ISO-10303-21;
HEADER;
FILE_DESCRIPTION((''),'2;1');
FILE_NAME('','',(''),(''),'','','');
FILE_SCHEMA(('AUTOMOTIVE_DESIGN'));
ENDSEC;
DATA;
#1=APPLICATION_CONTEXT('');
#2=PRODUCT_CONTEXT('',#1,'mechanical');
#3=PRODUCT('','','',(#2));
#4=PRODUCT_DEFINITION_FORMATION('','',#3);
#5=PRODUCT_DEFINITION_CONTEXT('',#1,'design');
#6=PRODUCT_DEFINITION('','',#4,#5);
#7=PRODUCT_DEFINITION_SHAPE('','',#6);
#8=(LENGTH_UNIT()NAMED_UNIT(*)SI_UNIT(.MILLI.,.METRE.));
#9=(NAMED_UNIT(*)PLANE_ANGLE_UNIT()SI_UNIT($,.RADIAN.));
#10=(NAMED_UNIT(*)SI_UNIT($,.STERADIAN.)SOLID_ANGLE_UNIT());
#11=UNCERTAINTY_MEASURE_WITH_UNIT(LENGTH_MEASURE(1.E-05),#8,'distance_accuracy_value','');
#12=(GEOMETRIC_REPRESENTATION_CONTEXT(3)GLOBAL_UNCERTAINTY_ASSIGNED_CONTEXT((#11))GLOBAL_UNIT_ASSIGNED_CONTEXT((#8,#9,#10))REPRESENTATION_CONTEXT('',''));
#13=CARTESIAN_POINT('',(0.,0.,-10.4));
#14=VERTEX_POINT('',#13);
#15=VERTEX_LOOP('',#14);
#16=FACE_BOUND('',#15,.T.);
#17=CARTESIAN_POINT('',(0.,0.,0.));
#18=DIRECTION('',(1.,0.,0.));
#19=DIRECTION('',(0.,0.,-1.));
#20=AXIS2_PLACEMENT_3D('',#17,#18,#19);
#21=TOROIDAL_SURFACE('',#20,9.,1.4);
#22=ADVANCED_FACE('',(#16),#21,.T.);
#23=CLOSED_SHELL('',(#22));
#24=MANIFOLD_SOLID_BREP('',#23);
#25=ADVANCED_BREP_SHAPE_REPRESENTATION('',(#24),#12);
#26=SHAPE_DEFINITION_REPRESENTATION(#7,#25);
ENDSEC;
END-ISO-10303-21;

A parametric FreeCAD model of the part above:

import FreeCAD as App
import Part
import Sketcher

doc = App.newDocument("Part")
body = doc.addObject("PartDesign::Body", "Body")

sketch1 = body.newObject("Sketcher::SketchObject", "Sketch")
sketch1.AttachmentSupport = (doc.getObject("XY_Plane"), [""])
sketch1.MapMode = "FlatFace"
sketch1.addGeometry(Part.Circle(App.Vector(0, 9, 0), App.Vector(0, 0, 1), 1.4), False)
sketch1.addConstraint(Sketcher.Constraint("PointOnObject", 0, 3, -2))
sketch1.addConstraint(Sketcher.Constraint("Diameter", 0, 2.8))
sketch1.addConstraint(Sketcher.Constraint("DistanceY", -1, 1, 0, 3, 9.0))
revolution = body.newObject("PartDesign::Revolution", "Revolution")
revolution.Profile = sketch1
revolution.ReferenceAxis = (sketch1, ["H_Axis"])
revolution.Angle = 360

doc.recompute()
